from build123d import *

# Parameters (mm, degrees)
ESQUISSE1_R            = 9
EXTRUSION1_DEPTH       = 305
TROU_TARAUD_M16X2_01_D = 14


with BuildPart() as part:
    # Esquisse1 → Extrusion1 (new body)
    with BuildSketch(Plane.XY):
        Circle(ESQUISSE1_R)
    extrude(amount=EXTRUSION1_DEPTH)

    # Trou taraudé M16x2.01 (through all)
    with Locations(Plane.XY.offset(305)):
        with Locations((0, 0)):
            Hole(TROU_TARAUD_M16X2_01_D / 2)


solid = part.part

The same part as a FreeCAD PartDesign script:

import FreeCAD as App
import Part
import Sketcher

V = App.Vector

doc = App.newDocument("Part")
body = doc.addObject("PartDesign::Body", "Body")

sketch1 = body.newObject("Sketcher::SketchObject", "Sketch")
sketch1.AttachmentSupport = (doc.getObject("XY_Plane"), [""])
sketch1.MapMode = "FlatFace"
sketch1.addGeometry(Part.Circle(V(0, 0, 0), V(0, 0, 1), 9), False)
sketch1.addConstraint([
    Sketcher.Constraint("Coincident", 0, 3, -1, 1),
    Sketcher.Constraint("Diameter", 0, 18.0),
])
pad1 = body.newObject("PartDesign::Pad", "Pad")
pad1.Profile = sketch1
pad1.Length = 305

sketch2 = body.newObject("Sketcher::SketchObject", "Sketch001")
sketch2.AttachmentSupport = (doc.getObject("XY_Plane"), [""])
sketch2.MapMode = "FlatFace"
sketch2.AttachmentOffset = App.Placement(V(0, 0, 305), App.Rotation())
sketch2.addGeometry(Part.Circle(V(0, 0, 0), V(0, 0, 1), 7), False)
sketch2.addConstraint([
    Sketcher.Constraint("Coincident", 0, 3, -1, 1),
    Sketcher.Constraint("Diameter", 0, 14.0),
])
doc.recompute()
hole = body.newObject("PartDesign::Hole", "Hole")
hole.Profile = sketch2
hole.ThreadType = "None"
hole.Diameter = 14
hole.DepthType = "ThroughAll"

doc.recompute()
